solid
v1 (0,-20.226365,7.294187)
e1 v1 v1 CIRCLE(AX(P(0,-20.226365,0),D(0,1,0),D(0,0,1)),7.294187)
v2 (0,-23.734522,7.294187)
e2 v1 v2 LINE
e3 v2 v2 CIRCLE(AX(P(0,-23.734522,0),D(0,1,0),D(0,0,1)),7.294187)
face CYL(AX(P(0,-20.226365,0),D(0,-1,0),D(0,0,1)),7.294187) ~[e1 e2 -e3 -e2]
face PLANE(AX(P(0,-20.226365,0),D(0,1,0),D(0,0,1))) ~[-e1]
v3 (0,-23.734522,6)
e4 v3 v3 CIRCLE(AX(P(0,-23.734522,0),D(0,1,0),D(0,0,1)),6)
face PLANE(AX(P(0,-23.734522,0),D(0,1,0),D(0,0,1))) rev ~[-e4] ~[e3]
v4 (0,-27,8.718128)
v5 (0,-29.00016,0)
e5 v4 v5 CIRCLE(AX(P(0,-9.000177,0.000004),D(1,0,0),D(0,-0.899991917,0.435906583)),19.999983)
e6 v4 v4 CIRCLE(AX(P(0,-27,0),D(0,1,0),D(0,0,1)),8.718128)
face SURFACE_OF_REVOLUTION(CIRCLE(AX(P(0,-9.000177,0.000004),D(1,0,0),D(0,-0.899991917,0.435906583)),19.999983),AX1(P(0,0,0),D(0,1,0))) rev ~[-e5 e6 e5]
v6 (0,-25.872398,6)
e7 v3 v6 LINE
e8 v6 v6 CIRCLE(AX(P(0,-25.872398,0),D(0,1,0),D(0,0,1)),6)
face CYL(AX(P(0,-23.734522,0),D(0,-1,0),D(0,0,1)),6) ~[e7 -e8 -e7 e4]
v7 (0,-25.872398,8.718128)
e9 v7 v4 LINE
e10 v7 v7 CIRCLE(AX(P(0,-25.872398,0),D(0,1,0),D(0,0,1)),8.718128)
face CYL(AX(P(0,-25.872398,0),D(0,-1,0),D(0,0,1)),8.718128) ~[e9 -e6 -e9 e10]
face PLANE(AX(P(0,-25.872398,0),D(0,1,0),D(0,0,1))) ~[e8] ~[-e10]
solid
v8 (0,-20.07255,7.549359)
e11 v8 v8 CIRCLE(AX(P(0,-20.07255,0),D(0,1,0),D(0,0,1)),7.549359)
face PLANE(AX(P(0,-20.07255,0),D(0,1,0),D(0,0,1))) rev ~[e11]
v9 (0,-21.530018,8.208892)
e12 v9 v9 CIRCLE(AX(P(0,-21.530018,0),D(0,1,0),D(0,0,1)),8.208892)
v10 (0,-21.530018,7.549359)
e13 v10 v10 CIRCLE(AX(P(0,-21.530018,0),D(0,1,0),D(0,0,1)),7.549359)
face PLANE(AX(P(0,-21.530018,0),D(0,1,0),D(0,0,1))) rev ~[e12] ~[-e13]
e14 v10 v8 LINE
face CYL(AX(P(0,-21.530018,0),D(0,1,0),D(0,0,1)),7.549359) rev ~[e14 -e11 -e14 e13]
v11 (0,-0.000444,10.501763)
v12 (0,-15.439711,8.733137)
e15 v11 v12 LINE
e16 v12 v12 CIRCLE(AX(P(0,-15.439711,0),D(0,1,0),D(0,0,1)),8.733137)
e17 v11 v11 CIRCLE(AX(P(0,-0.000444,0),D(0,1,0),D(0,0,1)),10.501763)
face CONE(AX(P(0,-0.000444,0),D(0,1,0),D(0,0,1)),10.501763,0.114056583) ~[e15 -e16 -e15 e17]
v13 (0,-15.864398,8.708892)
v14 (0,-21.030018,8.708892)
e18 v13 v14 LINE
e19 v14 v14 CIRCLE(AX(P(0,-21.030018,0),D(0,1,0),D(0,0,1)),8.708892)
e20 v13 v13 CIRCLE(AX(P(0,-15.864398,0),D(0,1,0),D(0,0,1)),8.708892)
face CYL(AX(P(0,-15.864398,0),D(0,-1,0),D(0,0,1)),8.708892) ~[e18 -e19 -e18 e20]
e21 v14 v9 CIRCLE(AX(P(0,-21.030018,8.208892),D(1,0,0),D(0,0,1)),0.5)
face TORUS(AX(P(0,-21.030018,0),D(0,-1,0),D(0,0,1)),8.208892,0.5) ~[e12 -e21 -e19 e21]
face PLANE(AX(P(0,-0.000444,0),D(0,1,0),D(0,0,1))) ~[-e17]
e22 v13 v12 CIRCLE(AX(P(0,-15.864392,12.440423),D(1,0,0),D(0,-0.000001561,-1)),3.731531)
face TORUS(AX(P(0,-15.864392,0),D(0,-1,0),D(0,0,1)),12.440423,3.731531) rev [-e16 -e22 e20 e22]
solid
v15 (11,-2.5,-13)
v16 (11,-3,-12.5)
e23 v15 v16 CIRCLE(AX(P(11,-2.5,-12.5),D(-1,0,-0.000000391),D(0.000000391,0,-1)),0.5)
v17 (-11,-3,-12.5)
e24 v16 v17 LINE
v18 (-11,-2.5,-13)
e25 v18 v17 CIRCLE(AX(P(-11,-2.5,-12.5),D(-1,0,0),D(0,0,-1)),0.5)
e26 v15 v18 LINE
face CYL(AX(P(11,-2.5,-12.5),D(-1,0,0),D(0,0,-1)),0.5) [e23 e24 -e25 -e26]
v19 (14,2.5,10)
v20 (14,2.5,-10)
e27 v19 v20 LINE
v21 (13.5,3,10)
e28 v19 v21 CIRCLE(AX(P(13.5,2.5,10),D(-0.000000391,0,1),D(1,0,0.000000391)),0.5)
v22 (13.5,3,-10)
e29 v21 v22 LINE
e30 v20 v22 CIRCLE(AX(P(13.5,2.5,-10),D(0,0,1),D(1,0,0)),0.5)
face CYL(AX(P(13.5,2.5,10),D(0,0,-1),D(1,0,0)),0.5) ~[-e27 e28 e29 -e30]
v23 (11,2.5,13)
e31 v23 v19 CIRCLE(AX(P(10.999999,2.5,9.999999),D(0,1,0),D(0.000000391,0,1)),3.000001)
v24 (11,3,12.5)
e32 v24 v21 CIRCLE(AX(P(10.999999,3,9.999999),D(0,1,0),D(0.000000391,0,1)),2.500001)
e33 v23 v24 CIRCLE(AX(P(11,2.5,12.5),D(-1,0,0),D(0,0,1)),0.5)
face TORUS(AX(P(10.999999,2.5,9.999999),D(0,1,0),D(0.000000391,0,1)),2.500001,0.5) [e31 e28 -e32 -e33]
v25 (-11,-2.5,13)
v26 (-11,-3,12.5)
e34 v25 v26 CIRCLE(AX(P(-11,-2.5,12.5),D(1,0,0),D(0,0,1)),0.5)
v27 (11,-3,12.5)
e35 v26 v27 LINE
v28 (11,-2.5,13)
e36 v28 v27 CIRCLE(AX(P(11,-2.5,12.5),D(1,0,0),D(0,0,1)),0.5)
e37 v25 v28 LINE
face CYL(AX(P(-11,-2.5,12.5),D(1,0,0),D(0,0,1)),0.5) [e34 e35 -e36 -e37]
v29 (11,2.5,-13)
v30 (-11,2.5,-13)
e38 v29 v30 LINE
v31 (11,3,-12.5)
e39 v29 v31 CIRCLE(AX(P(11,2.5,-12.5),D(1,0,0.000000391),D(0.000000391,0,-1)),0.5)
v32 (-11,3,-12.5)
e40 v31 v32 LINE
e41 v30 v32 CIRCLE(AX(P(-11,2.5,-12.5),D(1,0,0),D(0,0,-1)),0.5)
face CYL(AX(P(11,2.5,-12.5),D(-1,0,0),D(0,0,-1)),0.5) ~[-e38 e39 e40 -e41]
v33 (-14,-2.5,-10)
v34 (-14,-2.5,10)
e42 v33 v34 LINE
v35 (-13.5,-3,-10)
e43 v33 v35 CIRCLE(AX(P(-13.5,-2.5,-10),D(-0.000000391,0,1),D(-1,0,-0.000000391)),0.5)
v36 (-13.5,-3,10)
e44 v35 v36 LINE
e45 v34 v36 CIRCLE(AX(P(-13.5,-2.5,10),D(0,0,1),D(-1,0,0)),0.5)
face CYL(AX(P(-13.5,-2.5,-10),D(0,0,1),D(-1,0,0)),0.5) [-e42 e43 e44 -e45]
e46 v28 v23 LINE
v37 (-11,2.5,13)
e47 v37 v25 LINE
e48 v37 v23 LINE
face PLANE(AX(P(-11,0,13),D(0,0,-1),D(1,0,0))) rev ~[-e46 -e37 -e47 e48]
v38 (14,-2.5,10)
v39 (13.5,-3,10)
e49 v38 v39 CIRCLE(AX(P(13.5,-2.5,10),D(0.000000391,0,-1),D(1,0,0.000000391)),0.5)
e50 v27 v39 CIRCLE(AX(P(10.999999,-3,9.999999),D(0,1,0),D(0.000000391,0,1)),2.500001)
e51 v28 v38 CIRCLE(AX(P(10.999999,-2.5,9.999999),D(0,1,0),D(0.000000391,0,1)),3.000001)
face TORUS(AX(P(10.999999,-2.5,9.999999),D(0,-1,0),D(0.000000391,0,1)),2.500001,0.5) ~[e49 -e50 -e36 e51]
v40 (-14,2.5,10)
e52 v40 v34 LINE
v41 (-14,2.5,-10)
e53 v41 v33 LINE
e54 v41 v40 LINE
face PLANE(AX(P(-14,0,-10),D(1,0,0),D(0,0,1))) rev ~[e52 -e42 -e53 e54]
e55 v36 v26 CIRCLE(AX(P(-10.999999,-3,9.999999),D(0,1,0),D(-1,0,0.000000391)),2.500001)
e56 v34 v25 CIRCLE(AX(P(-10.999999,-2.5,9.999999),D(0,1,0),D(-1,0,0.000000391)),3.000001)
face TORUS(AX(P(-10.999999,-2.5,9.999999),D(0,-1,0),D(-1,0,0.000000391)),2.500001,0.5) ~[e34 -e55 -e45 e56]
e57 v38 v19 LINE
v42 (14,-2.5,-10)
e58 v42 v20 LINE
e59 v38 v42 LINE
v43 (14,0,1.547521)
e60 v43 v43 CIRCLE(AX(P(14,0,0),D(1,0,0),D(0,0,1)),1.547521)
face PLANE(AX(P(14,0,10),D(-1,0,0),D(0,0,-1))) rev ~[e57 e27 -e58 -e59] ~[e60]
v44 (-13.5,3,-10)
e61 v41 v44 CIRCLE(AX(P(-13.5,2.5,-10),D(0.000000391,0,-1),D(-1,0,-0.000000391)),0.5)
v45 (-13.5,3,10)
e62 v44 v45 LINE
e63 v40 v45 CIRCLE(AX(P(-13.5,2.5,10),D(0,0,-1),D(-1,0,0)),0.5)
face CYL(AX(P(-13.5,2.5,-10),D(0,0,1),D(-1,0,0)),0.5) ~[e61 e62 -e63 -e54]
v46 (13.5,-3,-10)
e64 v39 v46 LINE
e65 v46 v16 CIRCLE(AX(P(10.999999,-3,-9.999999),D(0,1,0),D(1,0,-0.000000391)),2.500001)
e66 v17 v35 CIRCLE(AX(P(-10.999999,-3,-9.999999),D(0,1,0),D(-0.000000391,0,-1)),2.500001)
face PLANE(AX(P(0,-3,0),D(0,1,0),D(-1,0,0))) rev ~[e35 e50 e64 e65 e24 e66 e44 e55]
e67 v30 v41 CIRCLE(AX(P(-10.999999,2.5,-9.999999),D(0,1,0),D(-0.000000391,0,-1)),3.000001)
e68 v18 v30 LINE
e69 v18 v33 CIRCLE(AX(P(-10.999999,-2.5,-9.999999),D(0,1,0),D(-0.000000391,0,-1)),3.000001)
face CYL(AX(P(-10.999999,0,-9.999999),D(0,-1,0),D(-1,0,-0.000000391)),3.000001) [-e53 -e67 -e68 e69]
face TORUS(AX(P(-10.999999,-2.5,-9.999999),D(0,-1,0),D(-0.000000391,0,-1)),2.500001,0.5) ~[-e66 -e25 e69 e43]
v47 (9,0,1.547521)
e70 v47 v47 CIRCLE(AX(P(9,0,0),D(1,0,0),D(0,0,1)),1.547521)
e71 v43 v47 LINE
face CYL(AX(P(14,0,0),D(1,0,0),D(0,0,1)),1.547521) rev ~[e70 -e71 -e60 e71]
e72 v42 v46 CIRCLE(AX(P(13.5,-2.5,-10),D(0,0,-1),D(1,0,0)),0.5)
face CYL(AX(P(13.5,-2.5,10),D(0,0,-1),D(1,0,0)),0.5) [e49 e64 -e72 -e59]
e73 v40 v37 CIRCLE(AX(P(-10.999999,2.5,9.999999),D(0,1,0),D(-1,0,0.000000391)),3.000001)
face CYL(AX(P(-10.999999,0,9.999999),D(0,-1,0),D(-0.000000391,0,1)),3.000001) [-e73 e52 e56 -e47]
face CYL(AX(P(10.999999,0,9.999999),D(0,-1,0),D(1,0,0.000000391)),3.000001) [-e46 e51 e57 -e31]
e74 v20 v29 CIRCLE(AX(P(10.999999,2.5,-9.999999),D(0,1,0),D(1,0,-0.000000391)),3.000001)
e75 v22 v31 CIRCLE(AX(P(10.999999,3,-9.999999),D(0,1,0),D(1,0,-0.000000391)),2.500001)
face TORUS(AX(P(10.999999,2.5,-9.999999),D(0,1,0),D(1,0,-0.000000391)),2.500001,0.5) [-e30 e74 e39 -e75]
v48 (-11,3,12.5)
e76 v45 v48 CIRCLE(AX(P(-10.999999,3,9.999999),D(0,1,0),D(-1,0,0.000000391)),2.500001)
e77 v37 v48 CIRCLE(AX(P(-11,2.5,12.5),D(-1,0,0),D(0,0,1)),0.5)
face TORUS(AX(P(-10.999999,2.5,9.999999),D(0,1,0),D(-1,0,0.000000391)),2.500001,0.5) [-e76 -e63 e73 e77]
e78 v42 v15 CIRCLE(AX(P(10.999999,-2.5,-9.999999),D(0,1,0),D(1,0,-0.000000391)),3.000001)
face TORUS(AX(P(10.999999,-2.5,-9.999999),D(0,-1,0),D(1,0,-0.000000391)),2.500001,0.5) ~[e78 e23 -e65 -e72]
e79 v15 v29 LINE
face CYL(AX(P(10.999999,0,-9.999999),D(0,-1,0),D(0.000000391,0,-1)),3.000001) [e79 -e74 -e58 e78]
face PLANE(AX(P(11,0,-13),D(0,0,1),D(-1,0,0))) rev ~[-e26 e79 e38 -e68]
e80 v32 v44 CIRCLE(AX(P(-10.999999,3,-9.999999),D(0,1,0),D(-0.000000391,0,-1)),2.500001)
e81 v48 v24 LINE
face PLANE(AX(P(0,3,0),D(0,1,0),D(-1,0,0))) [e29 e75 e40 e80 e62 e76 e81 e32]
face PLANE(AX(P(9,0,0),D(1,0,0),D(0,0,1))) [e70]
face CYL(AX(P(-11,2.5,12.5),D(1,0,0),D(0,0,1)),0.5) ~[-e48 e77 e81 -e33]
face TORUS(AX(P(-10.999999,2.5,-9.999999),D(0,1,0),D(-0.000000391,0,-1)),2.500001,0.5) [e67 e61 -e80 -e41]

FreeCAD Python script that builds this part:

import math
import FreeCAD as App
import Part
import Sketcher


def edges_at(feature, points):
    """Names of the edges that pass closest to the given points."""
    edges = feature.Shape.Edges
    near = lambda p: min(range(len(edges)), key=lambda i: edges[i].distToShape(Part.Vertex(*p))[0])
    return sorted({f"Edge{near(p) + 1}" for p in points})

doc = App.newDocument("Part")
body = doc.addObject("PartDesign::Body", "Body")

# Sketch on XZ plane
sketch1 = doc.addObject("Sketcher::SketchObject", "Sketch")
body.addObject(sketch1)
sketch1.AttachmentSupport = (doc.XZ_Plane, [""])
sketch1.MapMode = "FlatFace"
sketch1.addGeometry([
    Part.LineSegment(App.Vector(11, 13, 0), App.Vector(-11, 13, 0)),  # 0
    Part.ArcOfCircle(Part.Circle(App.Vector(-10.999999, 9.999999, 0), App.Vector(0, 0, 1), 3.000001), math.radians(90.000022), math.radians(179.999978)),  # 1
    Part.LineSegment(App.Vector(-14, 10, 0), App.Vector(-14, -10, 0)),  # 2
    Part.ArcOfCircle(Part.Circle(App.Vector(-10.999999, -9.999999, 0), App.Vector(0, 0, 1), 3.000001), math.radians(-179.999978), math.radians(-90.000022)),  # 3
    Part.LineSegment(App.Vector(-11, -13, 0), App.Vector(11, -13, 0)),  # 4
    Part.ArcOfCircle(Part.Circle(App.Vector(10.999999, -9.999999, 0), App.Vector(0, 0, 1), 3.000001), math.radians(-89.999978), math.radians(-0.000022)),  # 5
    Part.LineSegment(App.Vector(14, -10, 0), App.Vector(14, 10, 0)),  # 6
    Part.ArcOfCircle(Part.Circle(App.Vector(10.999999, 9.999999, 0), App.Vector(0, 0, 1), 3.000001), math.radians(0.000022), math.radians(89.999978)),  # 7
], False)
sketch1.addConstraint([
    Sketcher.Constraint("Tangent", 0, 2, 1, 1),
    Sketcher.Constraint("Tangent", 1, 2, 2, 1),
    Sketcher.Constraint("Tangent", 2, 2, 3, 1),
    Sketcher.Constraint("Tangent", 3, 2, 4, 1),
    Sketcher.Constraint("Tangent", 4, 2, 5, 1),
    Sketcher.Constraint("Tangent", 5, 2, 6, 1),
    Sketcher.Constraint("Tangent", 6, 2, 7, 1),
    Sketcher.Constraint("Tangent", 7, 2, 0, 1),
    Sketcher.Constraint("Horizontal", 0),
    Sketcher.Constraint("Vertical", 2),
    Sketcher.Constraint("Horizontal", 4),
    Sketcher.Constraint("Vertical", 6),
    Sketcher.Constraint("Equal", 1, 3),
    Sketcher.Constraint("Equal", 3, 5),
    Sketcher.Constraint("Equal", 5, 7),
    Sketcher.Constraint("Symmetric", 1, 3, 5, 3, -1, 1),
    Sketcher.Constraint("Radius", 1, 3.000001),
    Sketcher.Constraint("DistanceX", 0, 2, 0, 1, 22.0),
    Sketcher.Constraint("DistanceY", 2, 2, 2, 1, 20.0),
])
pad1 = doc.addObject("PartDesign::Pad", "Pad")
body.addObject(pad1)
pad1.Profile = sketch1
pad1.Length = 6
pad1.Midplane = True

# Sketch on YZ plane
sketch2 = doc.addObject("Sketcher::SketchObject", "Sketch001")
body.addObject(sketch2)
sketch2.AttachmentSupport = (doc.YZ_Plane, [""])
sketch2.MapMode = "FlatFace"
sketch2.AttachmentOffset = App.Placement(App.Vector(0, 0, 14), App.Rotation())
sketch2.addGeometry(Part.Circle(App.Vector(0, 0, 0), App.Vector(0, 0, 1), 1.547521), False)
sketch2.addConstraint([
    Sketcher.Constraint("Coincident", 0, 3, -1, 1),
    Sketcher.Constraint("Diameter", 0, 3.095042),
])
pocket1 = doc.addObject("PartDesign::Pocket", "Pocket")
body.addObject(pocket1)
pocket1.Profile = sketch2
pocket1.Length = 5
doc.recompute()

fillet = doc.addObject("PartDesign::Fillet", "Fillet")
body.addObject(fillet)
fillet.Base = (pocket1, edges_at(pocket1, [
    (0, -3, 13),
    (13.121, -3, 12.121),
    (14, -3, 0),
    (13.121, -3, -12.121),
    (0, -3, -13),
    (-13.121, -3, -12.121),
    (-14, -3, 0),
    (-13.121, -3, 12.121),
]))
fillet.Radius = 0.5
doc.recompute()

fillet2 = doc.addObject("PartDesign::Fillet", "Fillet001")
body.addObject(fillet2)
fillet2.Base = (fillet, edges_at(fillet, [
    (0, 3, 13),
    (13.121, 3, 12.121),
    (14, 3, 0),
    (13.121, 3, -12.121),
    (0, 3, -13),
    (-13.121, 3, -12.121),
    (-14, 3, 0),
    (-13.121, 3, 12.121),
]))
fillet2.Radius = 0.5
body2 = doc.addObject("PartDesign::Body", "Body001")

# Sketch on YZ plane
sketch3 = doc.addObject("Sketcher::SketchObject", "Sketch002")
body2.addObject(sketch3)
sketch3.AttachmentSupport = (doc.getObject("YZ_Plane001"), [""])
sketch3.MapMode = "FlatFace"
sketch3.addGeometry([
    Part.LineSegment(App.Vector(-0.000444, 0, 0), App.Vector(-0.000444, 10.501763, 0)),  # 0
    Part.LineSegment(App.Vector(-0.000444, 10.501763, 0), App.Vector(-15.439711, 8.733137, 0)),  # 1
    Part.ArcOfCircle(Part.Circle(App.Vector(-15.864392, 12.440423, 0), App.Vector(0, 0, 1), 3.731531), math.radians(-90.000089), math.radians(-83.465074)),  # 2
    Part.LineSegment(App.Vector(-15.864398, 8.708892, 0), App.Vector(-21.530018, 8.708892, 0)),  # 3
    Part.LineSegment(App.Vector(-21.530018, 8.708892, 0), App.Vector(-21.530018, 7.549359, 0)),  # 4
    Part.LineSegment(App.Vector(-21.530018, 7.549359, 0), App.Vector(-20.07255, 7.549359, 0)),  # 5
    Part.LineSegment(App.Vector(-20.07255, 7.549359, 0), App.Vector(-20.07255, 0, 0)),  # 6
    Part.LineSegment(App.Vector(-20.07255, 0, 0), App.Vector(-0.000444, 0, 0)),  # 7
], False)
sketch3.addConstraint([
    Sketcher.Constraint("Coincident", 0, 2, 1, 1),
    Sketcher.Constraint("Coincident", 1, 2, 2, 2),
    Sketcher.Constraint("Coincident", 2, 1, 3, 1),
    Sketcher.Constraint("Coincident", 3, 2, 4, 1),
    Sketcher.Constraint("Coincident", 4, 2, 5, 1),
    Sketcher.Constraint("Coincident", 5, 2, 6, 1),
    Sketcher.Constraint("Coincident", 6, 2, 7, 1),
    Sketcher.Constraint("Coincident", 7, 2, 0, 1),
    Sketcher.Constraint("Vertical", 0),
    Sketcher.Constraint("Horizontal", 3),
    Sketcher.Constraint("Vertical", 4),
    Sketcher.Constraint("Horizontal", 5),
    Sketcher.Constraint("Vertical", 6),
    Sketcher.Constraint("Horizontal", 7),
    Sketcher.Constraint("PointOnObject", 6, 2, -1),
    Sketcher.Constraint("Radius", 2, 3.731531),
    Sketcher.Constraint("DistanceX", 3, 2, 3, 1, 5.66562),
    Sketcher.Constraint("DistanceY", 6, 2, 6, 1, 7.549359),
    Sketcher.Constraint("Distance", 1, 15.540238),
    Sketcher.Constraint("DistanceX", 5, 1, 5, 2, 1.457468),
    Sketcher.Constraint("DistanceX", 7, 1, 7, 2, 20.072106),
    Sketcher.Constraint("DistanceY", 0, 1, 0, 2, 10.501763),
    Sketcher.Constraint("DistanceY", 4, 2, 4, 1, 1.159533),
    Sketcher.Constraint("DistanceX", 1, 2, -1, 1, 15.439711),
    Sketcher.Constraint("DistanceX", 5, 2, -1, 1, 20.07255),
])
revolution = doc.addObject("PartDesign::Revolution", "Revolution")
body2.addObject(revolution)
revolution.Profile = sketch3
revolution.ReferenceAxis = (sketch3, ["H_Axis"])
revolution.Angle = 360
doc.recompute()

fillet3 = doc.addObject("PartDesign::Fillet", "Fillet002")
body2.addObject(fillet3)
fillet3.Base = (revolution, edges_at(revolution, [(0, -21.53, -8.709)]))
fillet3.Radius = 0.5
body3 = doc.addObject("PartDesign::Body", "Body002")

# Sketch on YZ plane
sketch4 = doc.addObject("Sketcher::SketchObject", "Sketch003")
body3.addObject(sketch4)
sketch4.AttachmentSupport = (doc.getObject("YZ_Plane002"), [""])
sketch4.MapMode = "FlatFace"
sketch4.addGeometry([
    Part.LineSegment(App.Vector(-20.226365, 7.294187, 0), App.Vector(-23.734522, 7.294187, 0)),  # 0
    Part.LineSegment(App.Vector(-23.734522, 7.294187, 0), App.Vector(-23.734522, 6, 0)),  # 1
    Part.LineSegment(App.Vector(-23.734522, 6, 0), App.Vector(-25.872398, 6, 0)),  # 2
    Part.LineSegment(App.Vector(-25.872398, 6, 0), App.Vector(-25.872398, 8.718128, 0)),  # 3
    Part.LineSegment(App.Vector(-25.872398, 8.718128, 0), App.Vector(-27, 8.718128, 0)),  # 4
    Part.ArcOfCircle(Part.Circle(App.Vector(-9.000177, 0.000004, 0), App.Vector(0, 0, 1), 19.999983), math.radians(154.157005), math.radians(180.00001)),  # 5
    Part.LineSegment(App.Vector(-29.00016, 0, 0), App.Vector(-20.226365, 0, 0)),  # 6
    Part.LineSegment(App.Vector(-20.226365, 0, 0), App.Vector(-20.226365, 7.294187, 0)),  # 7
], False)
sketch4.addConstraint([
    Sketcher.Constraint("Coincident", 0, 2, 1, 1),
    Sketcher.Constraint("Coincident", 1, 2, 2, 1),
    Sketcher.Constraint("Coincident", 2, 2, 3, 1),
    Sketcher.Constraint("Coincident", 3, 2, 4, 1),
    Sketcher.Constraint("Coincident", 4, 2, 5, 1),
    Sketcher.Constraint("Coincident", 5, 2, 6, 1),
    Sketcher.Constraint("Coincident", 6, 2, 7, 1),
    Sketcher.Constraint("Coincident", 7, 2, 0, 1),
    Sketcher.Constraint("Horizontal", 0),
    Sketcher.Constraint("Vertical", 1),
    Sketcher.Constraint("Horizontal", 2),
    Sketcher.Constraint("Vertical", 3),
    Sketcher.Constraint("Horizontal", 4),
    Sketcher.Constraint("Horizontal", 6),
    Sketcher.Constraint("Vertical", 7),
    Sketcher.Constraint("PointOnObject", 5, 2, -1),
    Sketcher.Constraint("DistanceY", -1, 1, 1, 2, 6.0),
    Sketcher.Constraint("DistanceX", 4, 2, -1, 1, 27.0),
    Sketcher.Constraint("DistanceX", 4, 2, 4, 1, 1.127602),
    Sketcher.Constraint("Radius", 5, 19.999983),
    Sketcher.Constraint("DistanceY", 3, 1, 3, 2, 2.718128),
    Sketcher.Constraint("DistanceX", 0, 2, 0, 1, 3.508157),
    Sketcher.Constraint("DistanceX", 2, 2, 2, 1, 2.137876),
    Sketcher.Constraint("DistanceX", 6, 1, 6, 2, 8.773795),
    Sketcher.Constraint("DistanceY", 1, 2, 1, 1, 1.294187),
])
revolution2 = doc.addObject("PartDesign::Revolution", "Revolution001")
body3.addObject(revolution2)
revolution2.Profile = sketch4
revolution2.ReferenceAxis = (sketch4, ["H_Axis"])
revolution2.Angle = 360

doc.recompute()
